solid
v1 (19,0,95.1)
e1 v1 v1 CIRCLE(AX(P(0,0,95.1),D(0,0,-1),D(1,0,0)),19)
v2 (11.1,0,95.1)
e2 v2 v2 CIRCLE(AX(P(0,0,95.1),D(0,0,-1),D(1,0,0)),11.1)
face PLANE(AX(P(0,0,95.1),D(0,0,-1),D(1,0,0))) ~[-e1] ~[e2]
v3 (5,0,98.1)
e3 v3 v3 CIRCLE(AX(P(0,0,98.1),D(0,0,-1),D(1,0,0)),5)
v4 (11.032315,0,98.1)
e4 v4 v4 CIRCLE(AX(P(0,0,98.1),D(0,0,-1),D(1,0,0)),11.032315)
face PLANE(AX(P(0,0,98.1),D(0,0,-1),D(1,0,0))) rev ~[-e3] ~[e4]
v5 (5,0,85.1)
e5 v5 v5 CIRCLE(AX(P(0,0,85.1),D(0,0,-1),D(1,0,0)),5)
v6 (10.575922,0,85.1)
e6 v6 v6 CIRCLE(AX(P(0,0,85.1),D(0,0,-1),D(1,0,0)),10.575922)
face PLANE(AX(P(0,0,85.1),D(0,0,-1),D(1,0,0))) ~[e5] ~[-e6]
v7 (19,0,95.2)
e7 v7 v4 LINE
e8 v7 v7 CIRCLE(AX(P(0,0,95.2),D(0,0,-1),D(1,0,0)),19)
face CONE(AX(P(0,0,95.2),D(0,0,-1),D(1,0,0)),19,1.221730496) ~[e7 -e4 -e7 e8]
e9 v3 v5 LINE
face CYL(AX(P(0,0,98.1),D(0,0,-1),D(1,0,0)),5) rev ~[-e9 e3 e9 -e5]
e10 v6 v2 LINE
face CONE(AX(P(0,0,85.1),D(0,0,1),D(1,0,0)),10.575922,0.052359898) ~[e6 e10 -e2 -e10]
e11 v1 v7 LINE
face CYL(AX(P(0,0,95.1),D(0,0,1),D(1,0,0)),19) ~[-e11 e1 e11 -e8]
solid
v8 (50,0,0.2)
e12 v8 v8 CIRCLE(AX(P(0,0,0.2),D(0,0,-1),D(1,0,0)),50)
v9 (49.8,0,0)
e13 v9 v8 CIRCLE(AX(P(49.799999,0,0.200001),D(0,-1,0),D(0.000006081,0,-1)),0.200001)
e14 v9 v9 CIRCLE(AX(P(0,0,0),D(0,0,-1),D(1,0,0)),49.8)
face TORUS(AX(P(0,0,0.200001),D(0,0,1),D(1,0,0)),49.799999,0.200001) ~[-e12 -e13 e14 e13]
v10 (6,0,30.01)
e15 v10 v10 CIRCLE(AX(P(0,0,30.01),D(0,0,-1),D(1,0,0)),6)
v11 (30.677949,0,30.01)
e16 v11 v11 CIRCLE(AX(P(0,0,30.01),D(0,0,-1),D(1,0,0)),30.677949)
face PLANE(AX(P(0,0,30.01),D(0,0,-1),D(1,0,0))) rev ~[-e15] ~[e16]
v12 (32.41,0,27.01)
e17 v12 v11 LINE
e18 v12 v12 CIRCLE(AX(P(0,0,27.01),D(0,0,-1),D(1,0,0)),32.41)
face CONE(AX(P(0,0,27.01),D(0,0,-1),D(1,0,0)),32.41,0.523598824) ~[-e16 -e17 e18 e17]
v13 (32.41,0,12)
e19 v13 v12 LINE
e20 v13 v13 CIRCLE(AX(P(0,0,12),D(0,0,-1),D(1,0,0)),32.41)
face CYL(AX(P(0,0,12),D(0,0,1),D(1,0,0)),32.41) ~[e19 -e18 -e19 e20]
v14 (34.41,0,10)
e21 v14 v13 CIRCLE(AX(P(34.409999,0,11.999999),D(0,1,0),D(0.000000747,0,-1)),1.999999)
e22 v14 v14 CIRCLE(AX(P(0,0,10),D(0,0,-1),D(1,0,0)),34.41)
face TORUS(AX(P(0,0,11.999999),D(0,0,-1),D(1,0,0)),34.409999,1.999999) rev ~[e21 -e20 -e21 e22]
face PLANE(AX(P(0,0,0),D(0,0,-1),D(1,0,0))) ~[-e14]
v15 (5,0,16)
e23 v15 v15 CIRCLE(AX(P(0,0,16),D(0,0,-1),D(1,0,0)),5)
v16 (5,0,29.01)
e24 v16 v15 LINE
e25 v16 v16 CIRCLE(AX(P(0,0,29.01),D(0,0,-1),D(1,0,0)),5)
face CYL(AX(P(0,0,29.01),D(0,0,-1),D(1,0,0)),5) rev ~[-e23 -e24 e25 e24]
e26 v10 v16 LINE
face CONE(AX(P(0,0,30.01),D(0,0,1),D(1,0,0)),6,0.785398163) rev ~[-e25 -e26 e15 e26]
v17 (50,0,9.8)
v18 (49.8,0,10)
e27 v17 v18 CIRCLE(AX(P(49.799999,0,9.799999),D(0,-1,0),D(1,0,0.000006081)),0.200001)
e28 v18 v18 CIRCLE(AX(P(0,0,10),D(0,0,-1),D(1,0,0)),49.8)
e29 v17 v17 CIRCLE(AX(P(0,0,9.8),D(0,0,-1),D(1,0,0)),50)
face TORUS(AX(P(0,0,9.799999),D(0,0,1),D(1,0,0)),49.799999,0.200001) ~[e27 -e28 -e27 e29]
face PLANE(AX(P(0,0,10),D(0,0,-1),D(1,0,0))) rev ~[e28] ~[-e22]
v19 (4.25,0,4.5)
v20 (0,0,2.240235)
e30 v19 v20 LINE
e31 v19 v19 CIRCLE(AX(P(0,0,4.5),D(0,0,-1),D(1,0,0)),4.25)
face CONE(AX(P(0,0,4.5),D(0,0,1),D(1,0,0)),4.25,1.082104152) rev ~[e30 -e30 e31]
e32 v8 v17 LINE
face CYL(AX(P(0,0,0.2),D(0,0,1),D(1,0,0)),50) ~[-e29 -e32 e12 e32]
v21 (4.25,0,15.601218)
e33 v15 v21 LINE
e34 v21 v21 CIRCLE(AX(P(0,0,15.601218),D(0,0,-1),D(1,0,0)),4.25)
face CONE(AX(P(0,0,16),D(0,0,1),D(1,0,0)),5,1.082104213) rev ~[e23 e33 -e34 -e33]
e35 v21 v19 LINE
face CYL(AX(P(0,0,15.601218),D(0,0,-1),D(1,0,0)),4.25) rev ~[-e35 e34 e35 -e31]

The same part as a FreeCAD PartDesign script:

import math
import FreeCAD as App
import Part
import Sketcher
from FreeCAD import Vector
Q = App.Units.Quantity

doc = App.newDocument("Part")
body = doc.addObject("PartDesign::Body", "Body")
body.AllowCompound = True

# Sketch on XZ plane
sketch1 = body.newObject("Sketcher::SketchObject", "Sketch")
sketch1.AttachmentSupport = (doc.getObject("XZ_Plane"), [""])
sketch1.MapMode = "FlatFace"
sketch1.addGeometry([
    Part.LineSegment(Vector(4.25, 4.5, 0), Vector(0, 2.24, 0)),  # 0
    Part.LineSegment(Vector(0, 2.24, 0), Vector(0, 0, 0)),  # 1
    Part.LineSegment(Vector(0, 0, 0), Vector(49.8, 0, 0)),  # 2
    Part.ArcOfCircle(Part.Circle(Vector(49.8, 0.2, 0), Vector(0, 0, 1), 0.2), math.radians(-90), math.radians(0)),  # 3
    Part.LineSegment(Vector(50, 0.2, 0), Vector(50, 9.8, 0)),  # 4
    Part.ArcOfCircle(Part.Circle(Vector(49.8, 9.8, 0), Vector(0, 0, 1), 0.2), math.radians(0), math.radians(90)),  # 5
    Part.LineSegment(Vector(49.8, 10, 0), Vector(34.41, 10, 0)),  # 6
    Part.ArcOfCircle(Part.Circle(Vector(34.41, 12, 0), Vector(0, 0, 1), 2), math.radians(180), math.radians(270)),  # 7
    Part.LineSegment(Vector(32.41, 12, 0), Vector(32.41, 27.01, 0)),  # 8
    Part.LineSegment(Vector(32.41, 27.01, 0), Vector(30.68, 30.01, 0)),  # 9
    Part.LineSegment(Vector(30.68, 30.01, 0), Vector(6, 30.01, 0)),  # 10
    Part.LineSegment(Vector(6, 30.01, 0), Vector(5, 29.01, 0)),  # 11
    Part.LineSegment(Vector(5, 29.01, 0), Vector(5, 16, 0)),  # 12
    Part.LineSegment(Vector(5, 16, 0), Vector(4.25, 15.6, 0)),  # 13
    Part.LineSegment(Vector(4.25, 15.6, 0), Vector(4.25, 4.5, 0)),  # 14
    Part.LineSegment(Vector(5, 98.1, 0), Vector(5, 85.1, 0)),  # 15
    Part.LineSegment(Vector(5, 85.1, 0), Vector(10.58, 85.1, 0)),  # 16
    Part.LineSegment(Vector(10.58, 85.1, 0), Vector(11.1, 95.1, 0)),  # 17
    Part.LineSegment(Vector(11.1, 95.1, 0), Vector(19, 95.1, 0)),  # 18
    Part.LineSegment(Vector(19, 95.1, 0), Vector(19, 95.2, 0)),  # 19
    Part.LineSegment(Vector(19, 95.2, 0), Vector(11.03, 98.1, 0)),  # 20
    Part.LineSegment(Vector(11.03, 98.1, 0), Vector(5, 98.1, 0)),  # 21
], False)
sketch1.addConstraint([
    Sketcher.Constraint("Coincident", 0, 2, 1, 1),
    Sketcher.Constraint("Coincident", 1, 2, 2, 1),
    Sketcher.Constraint("Coincident", 2, 2, 3, 1),
    Sketcher.Constraint("Coincident", 3, 2, 4, 1),
    Sketcher.Constraint("Coincident", 4, 2, 5, 1),
    Sketcher.Constraint("Coincident", 5, 2, 6, 1),
    Sketcher.Constraint("Tangent", 6, 2, 7, 2),
    Sketcher.Constraint("Tangent", 7, 1, 8, 1),
    Sketcher.Constraint("Coincident", 8, 2, 9, 1),
    Sketcher.Constraint("Coincident", 9, 2, 10, 1),
    Sketcher.Constraint("Coincident", 10, 2, 11, 1),
    Sketcher.Constraint("Coincident", 11, 2, 12, 1),
    Sketcher.Constraint("Coincident", 12, 2, 13, 1),
    Sketcher.Constraint("Coincident", 13, 2, 14, 1),
    Sketcher.Constraint("Coincident", 14, 2, 0, 1),
    Sketcher.Constraint("Coincident", 15, 2, 16, 1),
    Sketcher.Constraint("Coincident", 16, 2, 17, 1),
    Sketcher.Constraint("Coincident", 17, 2, 18, 1),
    Sketcher.Constraint("Coincident", 18, 2, 19, 1),
    Sketcher.Constraint("Coincident", 19, 2, 20, 1),
    Sketcher.Constraint("Coincident", 20, 2, 21, 1),
    Sketcher.Constraint("Coincident", 21, 2, 15, 1),
    Sketcher.Constraint("Vertical", 1),
    Sketcher.Constraint("Horizontal", 2),
    Sketcher.Constraint("Vertical", 4),
    Sketcher.Constraint("Horizontal", 6),
    Sketcher.Constraint("Vertical", 8),
    Sketcher.Constraint("Horizontal", 10),
    Sketcher.Constraint("Vertical", 12),
    Sketcher.Constraint("Vertical", 14),
    Sketcher.Constraint("Vertical", 15),
    Sketcher.Constraint("Horizontal", 16),
    Sketcher.Constraint("Horizontal", 18),
    Sketcher.Constraint("Vertical", 19),
    Sketcher.Constraint("Horizontal", 21),
    Sketcher.Constraint("Coincident", 1, 2, -1, 1),
    Sketcher.Constraint("Equal", 3, 5),
    Sketcher.Constraint("Parallel", 0, 13),
    Sketcher.Constraint("Horizontal", 5, 3, 4, 2),
    Sketcher.Constraint("Vertical", 5, 3, 2, 2),
    Sketcher.Constraint("Vertical", 2, 2, 5, 2),
    Sketcher.Constraint("Vertical", 12, 2, 15, 2),
    Sketcher.Constraint("Radius", 7, 1.999999),
    Sketcher.Constraint("Radius", 3, 0.200001),
    Sketcher.Constraint("DistanceY", 15, 2, 15, 1, 13.0),
    Sketcher.Constraint("Angle", 0, Q("-152.000001 deg")),
    Sketcher.Constraint("Angle", 9, Q("120.000003 deg")),
    Sketcher.Constraint("Angle", 11, Q("-135 deg")),
    Sketcher.Constraint("Angle", 17, Q("86.999999 deg")),
    Sketcher.Constraint("Angle", 20, Q("160.000001 deg")),
    Sketcher.Constraint("DistanceX", 2, 1, 2, 2, 49.8),
    Sketcher.Constraint("DistanceX", 18, 1, 18, 2, 7.9),
    Sketcher.Constraint("DistanceY", 4, 1, 4, 2, 9.6),
    Sketcher.Constraint("DistanceY", 19, 1, 19, 2, 0.1),
    Sketcher.Constraint("DistanceY", -1, 1, 7, 3, 11.999999),
    Sketcher.Constraint("DistanceX", -1, 1, 10, 2, 6.0),
    Sketcher.Constraint("DistanceX", -1, 1, 11, 2, 5.0),
    Sketcher.Constraint("DistanceY", -1, 1, 12, 2, 16.0),
    Sketcher.Constraint("DistanceX", -1, 1, 18, 2, 19.0),
    Sketcher.Constraint("DistanceY", 8, 2, 9, 2, 3.0),
    Sketcher.Constraint("DistanceY", 16, 2, 17, 2, 10.0),
    Sketcher.Constraint("DistanceX", 6, 2, 6, 1, 15.39),
    Sketcher.Constraint("DistanceY", 8, 1, 8, 2, 15.01),
    Sketcher.Constraint("DistanceY", -1, 1, 14, 2, 4.5),
    Sketcher.Constraint("DistanceY", -1, 1, 15, 2, 85.1),
    Sketcher.Constraint("DistanceX", -1, 1, 13, 2, 4.25),
])
revolution = body.newObject("PartDesign::Revolution", "Revolution")
revolution.Profile = sketch1
revolution.ReferenceAxis = (sketch1, ["V_Axis"])
revolution.Angle = 360

doc.recompute()
